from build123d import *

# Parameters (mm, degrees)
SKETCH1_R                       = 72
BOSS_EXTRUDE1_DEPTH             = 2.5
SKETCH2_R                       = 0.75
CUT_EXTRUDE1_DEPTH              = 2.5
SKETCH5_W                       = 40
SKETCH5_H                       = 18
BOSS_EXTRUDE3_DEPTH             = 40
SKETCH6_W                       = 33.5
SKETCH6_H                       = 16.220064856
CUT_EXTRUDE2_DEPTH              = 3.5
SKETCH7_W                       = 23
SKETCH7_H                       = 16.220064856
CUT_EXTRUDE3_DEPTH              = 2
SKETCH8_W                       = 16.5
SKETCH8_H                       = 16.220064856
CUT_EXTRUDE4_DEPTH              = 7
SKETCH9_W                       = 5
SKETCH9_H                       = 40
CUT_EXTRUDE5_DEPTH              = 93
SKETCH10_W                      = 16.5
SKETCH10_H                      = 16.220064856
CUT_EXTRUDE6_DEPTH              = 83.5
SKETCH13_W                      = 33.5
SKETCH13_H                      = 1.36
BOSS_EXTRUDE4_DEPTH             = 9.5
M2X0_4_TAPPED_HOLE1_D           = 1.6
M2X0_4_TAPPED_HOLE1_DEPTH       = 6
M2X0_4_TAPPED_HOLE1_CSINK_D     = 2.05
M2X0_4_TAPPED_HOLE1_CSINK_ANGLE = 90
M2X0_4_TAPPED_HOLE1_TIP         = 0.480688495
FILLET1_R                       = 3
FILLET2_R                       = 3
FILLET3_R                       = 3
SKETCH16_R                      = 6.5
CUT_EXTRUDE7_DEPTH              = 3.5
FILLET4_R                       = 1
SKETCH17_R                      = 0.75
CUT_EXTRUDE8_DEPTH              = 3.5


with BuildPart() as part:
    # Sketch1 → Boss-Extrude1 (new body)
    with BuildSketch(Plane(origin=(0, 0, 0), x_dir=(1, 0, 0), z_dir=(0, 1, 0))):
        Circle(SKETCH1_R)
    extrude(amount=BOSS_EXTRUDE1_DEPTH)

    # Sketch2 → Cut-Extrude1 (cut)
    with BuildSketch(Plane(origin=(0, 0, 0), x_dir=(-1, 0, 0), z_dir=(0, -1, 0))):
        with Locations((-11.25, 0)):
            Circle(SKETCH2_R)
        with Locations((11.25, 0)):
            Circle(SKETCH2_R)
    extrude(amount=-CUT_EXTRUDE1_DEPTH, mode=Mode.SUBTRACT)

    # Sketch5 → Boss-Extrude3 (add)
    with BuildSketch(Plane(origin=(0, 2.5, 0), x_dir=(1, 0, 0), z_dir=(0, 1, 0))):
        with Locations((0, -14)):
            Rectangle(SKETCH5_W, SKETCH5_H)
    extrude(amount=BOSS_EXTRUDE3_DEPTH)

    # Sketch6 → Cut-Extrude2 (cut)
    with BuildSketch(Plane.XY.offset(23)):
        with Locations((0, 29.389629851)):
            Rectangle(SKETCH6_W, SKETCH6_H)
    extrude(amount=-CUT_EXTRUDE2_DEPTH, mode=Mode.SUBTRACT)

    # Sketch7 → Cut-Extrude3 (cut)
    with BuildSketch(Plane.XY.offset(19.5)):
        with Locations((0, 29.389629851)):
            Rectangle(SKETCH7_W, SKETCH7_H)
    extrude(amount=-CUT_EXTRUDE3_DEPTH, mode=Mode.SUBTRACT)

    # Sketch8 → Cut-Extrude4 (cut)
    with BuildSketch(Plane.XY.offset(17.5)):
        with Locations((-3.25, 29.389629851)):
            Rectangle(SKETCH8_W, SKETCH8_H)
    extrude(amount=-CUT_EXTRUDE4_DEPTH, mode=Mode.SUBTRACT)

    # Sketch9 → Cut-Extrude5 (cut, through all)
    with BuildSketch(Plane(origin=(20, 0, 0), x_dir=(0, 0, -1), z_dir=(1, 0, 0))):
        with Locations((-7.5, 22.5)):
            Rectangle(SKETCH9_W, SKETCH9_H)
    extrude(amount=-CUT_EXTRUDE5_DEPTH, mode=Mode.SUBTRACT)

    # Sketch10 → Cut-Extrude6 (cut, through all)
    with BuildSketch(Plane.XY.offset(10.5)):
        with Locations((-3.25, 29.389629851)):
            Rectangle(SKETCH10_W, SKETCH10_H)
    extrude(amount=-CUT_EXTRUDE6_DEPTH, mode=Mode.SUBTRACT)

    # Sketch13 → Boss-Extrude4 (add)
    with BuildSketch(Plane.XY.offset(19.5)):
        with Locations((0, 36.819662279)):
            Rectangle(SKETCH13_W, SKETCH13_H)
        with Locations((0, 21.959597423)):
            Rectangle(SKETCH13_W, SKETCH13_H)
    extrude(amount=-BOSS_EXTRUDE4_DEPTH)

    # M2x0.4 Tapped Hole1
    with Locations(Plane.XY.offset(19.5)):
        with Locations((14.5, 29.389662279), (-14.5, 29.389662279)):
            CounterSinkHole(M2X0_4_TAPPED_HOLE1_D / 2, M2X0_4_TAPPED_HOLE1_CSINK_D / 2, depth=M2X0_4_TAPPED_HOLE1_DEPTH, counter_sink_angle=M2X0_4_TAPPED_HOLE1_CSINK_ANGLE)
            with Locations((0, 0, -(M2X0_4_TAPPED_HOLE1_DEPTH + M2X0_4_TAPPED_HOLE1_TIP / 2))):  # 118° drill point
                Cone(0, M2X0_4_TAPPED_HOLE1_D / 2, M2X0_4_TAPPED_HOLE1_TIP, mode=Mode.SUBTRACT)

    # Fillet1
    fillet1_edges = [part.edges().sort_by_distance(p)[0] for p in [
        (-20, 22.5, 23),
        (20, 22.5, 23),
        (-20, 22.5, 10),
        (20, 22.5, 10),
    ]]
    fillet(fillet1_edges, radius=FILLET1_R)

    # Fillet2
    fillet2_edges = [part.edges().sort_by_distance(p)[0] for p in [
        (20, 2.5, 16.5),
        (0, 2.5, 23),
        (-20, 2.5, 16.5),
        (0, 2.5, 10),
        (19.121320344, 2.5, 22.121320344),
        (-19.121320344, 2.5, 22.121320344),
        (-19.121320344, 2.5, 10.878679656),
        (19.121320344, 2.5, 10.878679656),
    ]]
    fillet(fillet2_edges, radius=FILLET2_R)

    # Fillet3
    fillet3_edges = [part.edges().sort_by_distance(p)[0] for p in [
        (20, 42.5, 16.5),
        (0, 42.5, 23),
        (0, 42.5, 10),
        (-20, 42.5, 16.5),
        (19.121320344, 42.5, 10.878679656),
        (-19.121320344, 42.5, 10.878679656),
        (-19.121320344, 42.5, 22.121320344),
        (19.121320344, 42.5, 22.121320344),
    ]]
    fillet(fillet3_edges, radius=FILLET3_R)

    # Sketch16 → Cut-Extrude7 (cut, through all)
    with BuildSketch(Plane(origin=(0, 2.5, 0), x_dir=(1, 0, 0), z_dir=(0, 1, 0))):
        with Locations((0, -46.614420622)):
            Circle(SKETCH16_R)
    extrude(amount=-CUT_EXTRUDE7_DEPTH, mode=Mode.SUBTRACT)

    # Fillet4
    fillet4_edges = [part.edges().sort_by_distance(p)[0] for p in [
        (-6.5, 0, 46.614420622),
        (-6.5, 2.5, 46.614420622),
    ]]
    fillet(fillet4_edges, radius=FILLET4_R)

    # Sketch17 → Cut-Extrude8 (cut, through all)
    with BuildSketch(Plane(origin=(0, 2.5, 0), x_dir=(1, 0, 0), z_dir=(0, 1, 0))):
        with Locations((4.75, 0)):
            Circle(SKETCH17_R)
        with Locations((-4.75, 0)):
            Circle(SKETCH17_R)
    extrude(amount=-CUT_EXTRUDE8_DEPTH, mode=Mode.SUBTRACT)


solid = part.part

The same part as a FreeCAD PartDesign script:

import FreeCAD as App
import Part
import Sketcher

V = App.Vector
Q = App.Units.Quantity


def edges_at(feature, points):
    """Names of the edges that pass closest to the given points."""
    edges = feature.Shape.Edges
    near = lambda p: min(range(len(edges)), key=lambda i: edges[i].distToShape(Part.Vertex(*p))[0])
    return sorted({f"Edge{near(p) + 1}" for p in points})

doc = App.newDocument("Part")
body = doc.addObject("PartDesign::Body", "Body")

# Sketch on XZ plane
sketch1 = body.newObject("Sketcher::SketchObject", "Sketch")
sketch1.AttachmentSupport = (doc.getObject("XZ_Plane"), [""])
sketch1.MapMode = "FlatFace"
sketch1.addGeometry(Part.Circle(V(0, 0, 0), V(0, 0, 1), 72), False)
sketch1.addConstraint([
    Sketcher.Constraint("Coincident", 0, 3, -1, 1),
    Sketcher.Constraint("Diameter", 0, Q("144 mm")),
])
pad1 = body.newObject("PartDesign::Pad", "Pad")
pad1.Profile = sketch1
pad1.Length = 2.5
pad1.Reversed = True

# Sketch on XZ plane
sketch2 = body.newObject("Sketcher::SketchObject", "Sketch001")
sketch2.AttachmentSupport = (doc.getObject("XZ_Plane"), [""])
sketch2.MapMode = "FlatFace"
sketch2.addGeometry([
    Part.Circle(V(11.2, 0, 0), V(0, 0, 1), 0.8),
    Part.Circle(V(-11.2, 0, 0), V(0, 0, 1), 0.8),
], False)
sketch2.addConstraint([
    Sketcher.Constraint("Equal", 0, 1),
    Sketcher.Constraint("Symmetric", 0, 3, 1, 3, -1, 1),
    Sketcher.Constraint("PointOnObject", 0, 3, -1),
    Sketcher.Constraint("Diameter", 0, Q("1.5 mm")),
    Sketcher.Constraint("DistanceX", 1, 3, 0, 3, Q("22.5 mm")),
])
pocket1 = body.newObject("PartDesign::Pocket", "Pocket")
pocket1.Profile = sketch2
pocket1.Length = 2.5

# Sketch on XZ plane
sketch3 = body.newObject("Sketcher::SketchObject", "Sketch002")
sketch3.AttachmentSupport = (doc.getObject("XZ_Plane"), [""])
sketch3.MapMode = "FlatFace"
sketch3.AttachmentOffset = App.Placement(V(0, 0, -2.5), App.Rotation())
sketch3.addGeometry([
    Part.LineSegment(V(-20, 5, 0), V(-20, 23, 0)),
    Part.LineSegment(V(-20, 23, 0), V(20, 23, 0)),
    Part.LineSegment(V(20, 23, 0), V(20, 5, 0)),
    Part.LineSegment(V(20, 5, 0), V(-20, 5, 0)),
], False)
sketch3.addConstraint([
    Sketcher.Constraint("Coincident", 0, 2, 1, 1),
    Sketcher.Constraint("Coincident", 1, 2, 2, 1),
    Sketcher.Constraint("Coincident", 2, 2, 3, 1),
    Sketcher.Constraint("Coincident", 3, 2, 0, 1),
    Sketcher.Constraint("Vertical", 0),
    Sketcher.Constraint("Horizontal", 1),
    Sketcher.Constraint("Vertical", 2),
    Sketcher.Constraint("Horizontal", 3),
    Sketcher.Constraint("DistanceX", 1, 1, 1, 2, Q("40 mm")),
    Sketcher.Constraint("DistanceY", 0, 1, 0, 2, Q("18 mm")),
    Sketcher.Constraint("DistanceX", 0, 2, -1, 1, Q("20 mm")),
    Sketcher.Constraint("DistanceY", -1, 1, 0, 2, Q("23 mm")),
])
pad2 = body.newObject("PartDesign::Pad", "Pad001")
pad2.Profile = sketch3
pad2.Length = 40
pad2.Reversed = True

# Sketch on XY plane
sketch4 = body.newObject("Sketcher::SketchObject", "Sketch003")
sketch4.AttachmentSupport = (doc.getObject("XY_Plane"), [""])
sketch4.MapMode = "FlatFace"
sketch4.AttachmentOffset = App.Placement(V(0, 0, 23), App.Rotation())
sketch4.addGeometry([
    Part.LineSegment(V(-17, 37, 0), V(-17, 21, 0)),
    Part.LineSegment(V(-17, 21, 0), V(17, 21, 0)),
    Part.LineSegment(V(17, 21, 0), V(17, 37, 0)),
    Part.LineSegment(V(17, 37, 0), V(-17, 37, 0)),
], False)
sketch4.addConstraint([
    Sketcher.Constraint("Coincident", 0, 2, 1, 1),
    Sketcher.Constraint("Coincident", 1, 2, 2, 1),
    Sketcher.Constraint("Coincident", 2, 2, 3, 1),
    Sketcher.Constraint("Coincident", 3, 2, 0, 1),
    Sketcher.Constraint("Vertical", 0),
    Sketcher.Constraint("Horizontal", 1),
    Sketcher.Constraint("Vertical", 2),
    Sketcher.Constraint("Horizontal", 3),
    Sketcher.Constraint("DistanceX", 1, 1, 1, 2, Q("33.5 mm")),
    Sketcher.Constraint("DistanceX", 0, 2, -1, 1, Q("16.75 mm")),
    Sketcher.Constraint("DistanceY", 0, 2, 0, 1, Q("16.220065 mm")),
    Sketcher.Constraint("DistanceY", -1, 1, 0, 2, Q("21.279597 mm")),
])
pocket2 = body.newObject("PartDesign::Pocket", "Pocket001")
pocket2.Profile = sketch4
pocket2.Length = 3.5

# Sketch on XY plane
sketch5 = body.newObject("Sketcher::SketchObject", "Sketch004")
sketch5.AttachmentSupport = (doc.getObject("XY_Plane"), [""])
sketch5.MapMode = "FlatFace"
sketch5.AttachmentOffset = App.Placement(V(0, 0, 19.5), App.Rotation())
sketch5.addGeometry([
    Part.LineSegment(V(-12, 37, 0), V(-12, 21, 0)),
    Part.LineSegment(V(-12, 21, 0), V(12, 21, 0)),
    Part.LineSegment(V(12, 21, 0), V(12, 37, 0)),
    Part.LineSegment(V(12, 37, 0), V(-12, 37, 0)),
], False)
sketch5.addConstraint([
    Sketcher.Constraint("Coincident", 0, 2, 1, 1),
    Sketcher.Constraint("Coincident", 1, 2, 2, 1),
    Sketcher.Constraint("Coincident", 2, 2, 3, 1),
    Sketcher.Constraint("Coincident", 3, 2, 0, 1),
    Sketcher.Constraint("Vertical", 0),
    Sketcher.Constraint("Horizontal", 1),
    Sketcher.Constraint("Vertical", 2),
    Sketcher.Constraint("Horizontal", 3),
    Sketcher.Constraint("DistanceX", 1, 1, 1, 2, Q("23 mm")),
    Sketcher.Constraint("DistanceX", 0, 2, -1, 1, Q("11.5 mm")),
    Sketcher.Constraint("DistanceY", 0, 2, 0, 1, Q("16.220065 mm")),
    Sketcher.Constraint("DistanceY", -1, 1, 0, 2, Q("21.279597 mm")),
])
pocket3 = body.newObject("PartDesign::Pocket", "Pocket002")
pocket3.Profile = sketch5
pocket3.Length = 2

# Sketch on XY plane
sketch6 = body.newObject("Sketcher::SketchObject", "Sketch005")
sketch6.AttachmentSupport = (doc.getObject("XY_Plane"), [""])
sketch6.MapMode = "FlatFace"
sketch6.AttachmentOffset = App.Placement(V(0, 0, 17.5), App.Rotation())
sketch6.addGeometry([
    Part.LineSegment(V(-12, 37, 0), V(-12, 21, 0)),
    Part.LineSegment(V(-12, 21, 0), V(5, 21, 0)),
    Part.LineSegment(V(5, 21, 0), V(5, 37, 0)),
    Part.LineSegment(V(5, 37, 0), V(-12, 37, 0)),
], False)
sketch6.addConstraint([
    Sketcher.Constraint("Coincident", 0, 2, 1, 1),
    Sketcher.Constraint("Coincident", 1, 2, 2, 1),
    Sketcher.Constraint("Coincident", 2, 2, 3, 1),
    Sketcher.Constraint("Coincident", 3, 2, 0, 1),
    Sketcher.Constraint("Vertical", 0),
    Sketcher.Constraint("Horizontal", 1),
    Sketcher.Constraint("Vertical", 2),
    Sketcher.Constraint("Horizontal", 3),
    Sketcher.Constraint("DistanceX", 1, 1, 1, 2, Q("16.5 mm")),
    Sketcher.Constraint("DistanceX", -1, 1, 1, 2, Q("5 mm")),
    Sketcher.Constraint("DistanceY", 0, 2, 0, 1, Q("16.220065 mm")),
    Sketcher.Constraint("DistanceY", -1, 1, 0, 2, Q("21.279597 mm")),
])
pocket4 = body.newObject("PartDesign::Pocket", "Pocket003")
pocket4.Profile = sketch6
pocket4.Length = 7

# Sketch on YZ plane
sketch7 = body.newObject("Sketcher::SketchObject", "Sketch006")
sketch7.AttachmentSupport = (doc.getObject("YZ_Plane"), [""])
sketch7.MapMode = "FlatFace"
sketch7.AttachmentOffset = App.Placement(V(0, 0, 20), App.Rotation())
sketch7.addGeometry([
    Part.LineSegment(V(42, 10, 0), V(2, 10, 0)),
    Part.LineSegment(V(2, 10, 0), V(2, 5, 0)),
    Part.LineSegment(V(2, 5, 0), V(42, 5, 0)),
    Part.LineSegment(V(42, 5, 0), V(42, 10, 0)),
], False)
sketch7.addConstraint([
    Sketcher.Constraint("Coincident", 0, 2, 1, 1),
    Sketcher.Constraint("Coincident", 1, 2, 2, 1),
    Sketcher.Constraint("Coincident", 2, 2, 3, 1),
    Sketcher.Constraint("Coincident", 3, 2, 0, 1),
    Sketcher.Constraint("Horizontal", 0),
    Sketcher.Constraint("Vertical", 1),
    Sketcher.Constraint("Horizontal", 2),
    Sketcher.Constraint("Vertical", 3),
    Sketcher.Constraint("DistanceX", 0, 2, 0, 1, Q("40 mm")),
    Sketcher.Constraint("DistanceY", 1, 2, 1, 1, Q("5 mm")),
    Sketcher.Constraint("DistanceY", -1, 1, 0, 2, Q("10 mm")),
    Sketcher.Constraint("DistanceX", -1, 1, 0, 2, Q("2.5 mm")),
])
pocket5 = body.newObject("PartDesign::Pocket", "Pocket004")
pocket5.Profile = sketch7
pocket5.Type = "ThroughAll"

# Sketch on XY plane
sketch8 = body.newObject("Sketcher::SketchObject", "Sketch007")
sketch8.AttachmentSupport = (doc.getObject("XY_Plane"), [""])
sketch8.MapMode = "FlatFace"
sketch8.AttachmentOffset = App.Placement(V(0, 0, 10.5), App.Rotation())
sketch8.addGeometry([
    Part.LineSegment(V(-12, 37, 0), V(-12, 21, 0)),
    Part.LineSegment(V(-12, 21, 0), V(5, 21, 0)),
    Part.LineSegment(V(5, 21, 0), V(5, 37, 0)),
    Part.LineSegment(V(5, 37, 0), V(-12, 37, 0)),
], False)
sketch8.addConstraint([
    Sketcher.Constraint("Coincident", 0, 2, 1, 1),
    Sketcher.Constraint("Coincident", 1, 2, 2, 1),
    Sketcher.Constraint("Coincident", 2, 2, 3, 1),
    Sketcher.Constraint("Coincident", 3, 2, 0, 1),
    Sketcher.Constraint("Vertical", 0),
    Sketcher.Constraint("Horizontal", 1),
    Sketcher.Constraint("Vertical", 2),
    Sketcher.Constraint("Horizontal", 3),
    Sketcher.Constraint("DistanceX", 1, 1, 1, 2, Q("16.5 mm")),
    Sketcher.Constraint("DistanceX", -1, 1, 1, 2, Q("5 mm")),
    Sketcher.Constraint("DistanceY", 0, 2, 0, 1, Q("16.220065 mm")),
    Sketcher.Constraint("DistanceY", -1, 1, 0, 2, Q("21.279597 mm")),
])
pocket6 = body.newObject("PartDesign::Pocket", "Pocket005")
pocket6.Profile = sketch8
pocket6.Type = "ThroughAll"

# Sketch on XY plane
sketch9 = body.newObject("Sketcher::SketchObject", "Sketch008")
sketch9.AttachmentSupport = (doc.getObject("XY_Plane"), [""])
sketch9.MapMode = "FlatFace"
sketch9.AttachmentOffset = App.Placement(V(0, 0, 19.5), App.Rotation())
sketch9.addGeometry([
    Part.LineSegment(V(-16.8, 37.5, 0), V(-16.8, 36.1, 0)),  # 0
    Part.LineSegment(V(-16.8, 36.1, 0), V(16.8, 36.1, 0)),  # 1
    Part.LineSegment(V(16.8, 36.1, 0), V(16.8, 37.5, 0)),  # 2
    Part.LineSegment(V(16.8, 37.5, 0), V(-16.8, 37.5, 0)),  # 3
    Part.LineSegment(V(-16.8, 22.6, 0), V(-16.8, 21.3, 0)),  # 4
    Part.LineSegment(V(-16.8, 21.3, 0), V(16.8, 21.3, 0)),  # 5
    Part.LineSegment(V(16.8, 21.3, 0), V(16.8, 22.6, 0)),  # 6
    Part.LineSegment(V(16.8, 22.6, 0), V(-16.8, 22.6, 0)),  # 7
], False)
sketch9.addConstraint([
    Sketcher.Constraint("Coincident", 0, 2, 1, 1),
    Sketcher.Constraint("Coincident", 1, 2, 2, 1),
    Sketcher.Constraint("Coincident", 2, 2, 3, 1),
    Sketcher.Constraint("Coincident", 3, 2, 0, 1),
    Sketcher.Constraint("Coincident", 4, 2, 5, 1),
    Sketcher.Constraint("Coincident", 5, 2, 6, 1),
    Sketcher.Constraint("Coincident", 6, 2, 7, 1),
    Sketcher.Constraint("Coincident", 7, 2, 4, 1),
    Sketcher.Constraint("Vertical", 0),
    Sketcher.Constraint("Horizontal", 1),
    Sketcher.Constraint("Vertical", 2),
    Sketcher.Constraint("Horizontal", 3),
    Sketcher.Constraint("Vertical", 4),
    Sketcher.Constraint("Horizontal", 5),
    Sketcher.Constraint("Vertical", 6),
    Sketcher.Constraint("Horizontal", 7),
    Sketcher.Constraint("Vertical", 3, 2, 4, 2),
    Sketcher.Constraint("Vertical", 2, 2, 5, 2),
    Sketcher.Constraint("Equal", 2, 4),
    Sketcher.Constraint("DistanceX", 1, 1, 1, 2, Q("33.5 mm")),
    Sketcher.Constraint("DistanceY", 0, 2, 0, 1, Q("1.36 mm")),
    Sketcher.Constraint("DistanceX", 0, 2, -1, 1, Q("16.75 mm")),
    Sketcher.Constraint("DistanceY", -1, 1, 0, 2, Q("36.139662 mm")),
    Sketcher.Constraint("DistanceY", -1, 1, 4, 2, Q("21.279597 mm")),
])
pad3 = body.newObject("PartDesign::Pad", "Pad002")
pad3.Profile = sketch9
pad3.Length = 9.5
pad3.Reversed = True

# Sketch on XY plane
sketch10 = body.newObject("Sketcher::SketchObject", "Sketch009")
sketch10.AttachmentSupport = (doc.getObject("XY_Plane"), [""])
sketch10.MapMode = "FlatFace"
sketch10.AttachmentOffset = App.Placement(V(0, 0, 19.5), App.Rotation())
sketch10.addGeometry([
    Part.Circle(V(14.5, 29.4, 0), V(0, 0, 1), 0.8),
    Part.Circle(V(-14.5, 29.4, 0), V(0, 0, 1), 0.8),
], False)
sketch10.addConstraint([
    Sketcher.Constraint("Equal", 0, 1),
    Sketcher.Constraint("Symmetric", 0, 3, 1, 3, -2),
    Sketcher.Constraint("Diameter", 0, Q("1.6 mm")),
    Sketcher.Constraint("DistanceX", 1, 3, 0, 3, Q("29 mm")),
    Sketcher.Constraint("DistanceY", -1, 1, 0, 3, Q("29.389662 mm")),
])
doc.recompute()
hole = body.newObject("PartDesign::Hole", "Hole")
hole.Profile = sketch10
hole.ThreadType = "None"
hole.Diameter = 1.6
hole.DepthType = "Dimension"
hole.Depth = 6
hole.DrillPoint = "Angled"
hole.DrillPointAngle = 118
hole.HoleCutType = "Countersink"
hole.HoleCutDiameter = 2.05
hole.HoleCutCountersinkAngle = 90
doc.recompute()

fillet = body.newObject("PartDesign::Fillet", "Fillet")
fillet.Base = (hole, edges_at(hole, [
    (-20, 22.5, 23),
    (20, 22.5, 23),
    (-20, 22.5, 10),
    (20, 22.5, 10),
]))
fillet.Radius = 3
doc.recompute()

fillet2 = body.newObject("PartDesign::Fillet", "Fillet001")
fillet2.Base = (fillet, edges_at(fillet, [
    (20, 2.5, 16.5),
    (0, 2.5, 23),
    (-20, 2.5, 16.5),
    (0, 2.5, 10),
    (19.121, 2.5, 22.121),
    (-19.121, 2.5, 22.121),
    (-19.121, 2.5, 10.879),
    (19.121, 2.5, 10.879),
]))
fillet2.Radius = 3
doc.recompute()

fillet3 = body.newObject("PartDesign::Fillet", "Fillet002")
fillet3.Base = (fillet2, edges_at(fillet2, [
    (20, 42.5, 16.5),
    (0, 42.5, 23),
    (0, 42.5, 10),
    (-20, 42.5, 16.5),
    (19.121, 42.5, 10.879),
    (-19.121, 42.5, 10.879),
    (-19.121, 42.5, 22.121),
    (19.121, 42.5, 22.121),
]))
fillet3.Radius = 3

# Sketch on XZ plane
sketch11 = body.newObject("Sketcher::SketchObject", "Sketch010")
sketch11.AttachmentSupport = (doc.getObject("XZ_Plane"), [""])
sketch11.MapMode = "FlatFace"
sketch11.AttachmentOffset = App.Placement(V(0, 0, -2.5), App.Rotation())
sketch11.addGeometry(Part.Circle(V(0, 47, 0), V(0, 0, 1), 6), False)
sketch11.addConstraint([
    Sketcher.Constraint("PointOnObject", 0, 3, -2),
    Sketcher.Constraint("Diameter", 0, Q("13 mm")),
    Sketcher.Constraint("DistanceY", -1, 1, 0, 3, Q("46.614421 mm")),
])
pocket7 = body.newObject("PartDesign::Pocket", "Pocket006")
pocket7.Profile = sketch11
pocket7.Type = "ThroughAll"
pocket7.Reversed = True
doc.recompute()

fillet4 = body.newObject("PartDesign::Fillet", "Fillet003")
fillet4.Base = (pocket7, edges_at(pocket7, [(-6.5, 0, 46.614), (-6.5, 2.5, 46.614)]))
fillet4.Radius = 1

# Sketch on XZ plane
sketch12 = body.newObject("Sketcher::SketchObject", "Sketch011")
sketch12.AttachmentSupport = (doc.getObject("XZ_Plane"), [""])
sketch12.MapMode = "FlatFace"
sketch12.AttachmentOffset = App.Placement(V(0, 0, -2.5), App.Rotation())
sketch12.addGeometry([
    Part.Circle(V(4.8, 0, 0), V(0, 0, 1), 0.8),
    Part.Circle(V(-4.8, 0, 0), V(0, 0, 1), 0.8),
], False)
sketch12.addConstraint([
    Sketcher.Constraint("Equal", 0, 1),
    Sketcher.Constraint("Symmetric", 0, 3, 1, 3, -1, 1),
    Sketcher.Constraint("PointOnObject", 0, 3, -1),
    Sketcher.Constraint("Diameter", 0, Q("1.5 mm")),
    Sketcher.Constraint("DistanceX", 1, 3, 0, 3, Q("9.5 mm")),
])
pocket8 = body.newObject("PartDesign::Pocket", "Pocket007")
pocket8.Profile = sketch12
pocket8.Type = "ThroughAll"
pocket8.Reversed = True

doc.recompute()
